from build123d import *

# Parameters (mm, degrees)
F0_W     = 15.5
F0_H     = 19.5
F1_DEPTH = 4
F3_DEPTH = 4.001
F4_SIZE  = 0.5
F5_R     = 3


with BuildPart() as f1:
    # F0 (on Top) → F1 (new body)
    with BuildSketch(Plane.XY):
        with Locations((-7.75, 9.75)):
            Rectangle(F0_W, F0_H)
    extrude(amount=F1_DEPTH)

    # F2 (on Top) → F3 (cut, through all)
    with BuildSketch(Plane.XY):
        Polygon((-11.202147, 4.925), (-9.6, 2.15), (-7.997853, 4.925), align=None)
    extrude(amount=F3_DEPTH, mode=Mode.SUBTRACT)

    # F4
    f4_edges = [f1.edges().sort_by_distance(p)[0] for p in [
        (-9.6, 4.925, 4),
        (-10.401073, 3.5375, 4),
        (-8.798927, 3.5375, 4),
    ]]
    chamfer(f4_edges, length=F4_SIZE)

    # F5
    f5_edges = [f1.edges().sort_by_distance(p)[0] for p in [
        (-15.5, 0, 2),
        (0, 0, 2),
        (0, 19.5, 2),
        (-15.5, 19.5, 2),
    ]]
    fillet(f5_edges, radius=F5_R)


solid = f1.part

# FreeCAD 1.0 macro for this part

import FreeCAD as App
import Part
import Sketcher
from FreeCAD import Vector
Q = App.Units.Quantity


def edges_at(feature, points):
    """Names of the edges that pass closest to the given points."""
    edges = feature.Shape.Edges
    near = lambda p: min(range(len(edges)), key=lambda i: edges[i].distToShape(Part.Vertex(*p))[0])
    return sorted({f"Edge{near(p) + 1}" for p in points})

doc = App.newDocument("Part")
body = doc.addObject("PartDesign::Body", "Body")

# Sketch on XY plane
sketch1 = body.newObject("Sketcher::SketchObject", "Sketch")
sketch1.AttachmentSupport = (doc.getObject("XY_Plane"), [""])
sketch1.MapMode = "FlatFace"
sketch1.addGeometry(Part.LineSegment(Vector(-16, 20, 0), Vector(-16, 0, 0)), False)
sketch1.addGeometry(Part.LineSegment(Vector(-16, 0, 0), Vector(0, 0, 0)), False)
sketch1.addGeometry(Part.LineSegment(Vector(0, 0, 0), Vector(0, 20, 0)), False)
sketch1.addGeometry(Part.LineSegment(Vector(0, 20, 0), Vector(-16, 20, 0)), False)
sketch1.addConstraint(Sketcher.Constraint("Coincident", 0, 2, 1, 1))
sketch1.addConstraint(Sketcher.Constraint("Coincident", 1, 2, 2, 1))
sketch1.addConstraint(Sketcher.Constraint("Coincident", 2, 2, 3, 1))
sketch1.addConstraint(Sketcher.Constraint("Coincident", 3, 2, 0, 1))
sketch1.addConstraint(Sketcher.Constraint("Vertical", 0))
sketch1.addConstraint(Sketcher.Constraint("Horizontal", 1))
sketch1.addConstraint(Sketcher.Constraint("Vertical", 2))
sketch1.addConstraint(Sketcher.Constraint("Horizontal", 3))
sketch1.addConstraint(Sketcher.Constraint("Coincident", 1, 2, -1, 1))
sketch1.addConstraint(Sketcher.Constraint("DistanceX", 1, 1, 1, 2, Q("15.5 mm")))
sketch1.addConstraint(Sketcher.Constraint("DistanceY", 0, 2, 0, 1, Q("19.5 mm")))
pad1 = body.newObject("PartDesign::Pad", "Pad")
pad1.Profile = sketch1
pad1.Length = 4

# Sketch on XY plane
sketch2 = body.newObject("Sketcher::SketchObject", "Sketch001")
sketch2.AttachmentSupport = (doc.getObject("XY_Plane"), [""])
sketch2.MapMode = "FlatFace"
sketch2.addGeometry(Part.LineSegment(Vector(-11.2, 4.9, 0), Vector(-9.6, 2.1, 0)), False)
sketch2.addGeometry(Part.LineSegment(Vector(-9.6, 2.1, 0), Vector(-8, 4.9, 0)), False)
sketch2.addGeometry(Part.LineSegment(Vector(-8, 4.9, 0), Vector(-11.2, 4.9, 0)), False)
sketch2.addConstraint(Sketcher.Constraint("Coincident", 0, 2, 1, 1))
sketch2.addConstraint(Sketcher.Constraint("Coincident", 1, 2, 2, 1))
sketch2.addConstraint(Sketcher.Constraint("Coincident", 2, 2, 0, 1))
sketch2.addConstraint(Sketcher.Constraint("Horizontal", 2))
sketch2.addConstraint(Sketcher.Constraint("Equal", 0, 1))
sketch2.addConstraint(Sketcher.Constraint("Angle", 0, Q("-60 deg")))
sketch2.addConstraint(Sketcher.Constraint("DistanceX", 0, 2, -1, 1, Q("9.6 mm")))
sketch2.addConstraint(Sketcher.Constraint("DistanceY", -1, 1, 0, 2, Q("2.15 mm")))
sketch2.addConstraint(Sketcher.Constraint("DistanceY", -1, 1, 1, 2, Q("4.925 mm")))
pocket1 = body.newObject("PartDesign::Pocket", "Pocket")
pocket1.Profile = sketch2
pocket1.Type = "ThroughAll"
pocket1.Reversed = True
doc.recompute()

chamfer = body.newObject("PartDesign::Chamfer", "Chamfer")
chamfer.Base = (pocket1, edges_at(pocket1, [(-9.6, 4.925, 4), (-10.401, 3.538, 4), (-8.799, 3.538, 4)]))
chamfer.Size = 0.5
doc.recompute()

fillet = body.newObject("PartDesign::Fillet", "Fillet")
fillet.Base = (chamfer, edges_at(chamfer, [
    (-15.5, 0, 2),
    (0, 0, 2),
    (0, 19.5, 2),
    (-15.5, 19.5, 2),
]))
fillet.Radius = 3

doc.recompute()
